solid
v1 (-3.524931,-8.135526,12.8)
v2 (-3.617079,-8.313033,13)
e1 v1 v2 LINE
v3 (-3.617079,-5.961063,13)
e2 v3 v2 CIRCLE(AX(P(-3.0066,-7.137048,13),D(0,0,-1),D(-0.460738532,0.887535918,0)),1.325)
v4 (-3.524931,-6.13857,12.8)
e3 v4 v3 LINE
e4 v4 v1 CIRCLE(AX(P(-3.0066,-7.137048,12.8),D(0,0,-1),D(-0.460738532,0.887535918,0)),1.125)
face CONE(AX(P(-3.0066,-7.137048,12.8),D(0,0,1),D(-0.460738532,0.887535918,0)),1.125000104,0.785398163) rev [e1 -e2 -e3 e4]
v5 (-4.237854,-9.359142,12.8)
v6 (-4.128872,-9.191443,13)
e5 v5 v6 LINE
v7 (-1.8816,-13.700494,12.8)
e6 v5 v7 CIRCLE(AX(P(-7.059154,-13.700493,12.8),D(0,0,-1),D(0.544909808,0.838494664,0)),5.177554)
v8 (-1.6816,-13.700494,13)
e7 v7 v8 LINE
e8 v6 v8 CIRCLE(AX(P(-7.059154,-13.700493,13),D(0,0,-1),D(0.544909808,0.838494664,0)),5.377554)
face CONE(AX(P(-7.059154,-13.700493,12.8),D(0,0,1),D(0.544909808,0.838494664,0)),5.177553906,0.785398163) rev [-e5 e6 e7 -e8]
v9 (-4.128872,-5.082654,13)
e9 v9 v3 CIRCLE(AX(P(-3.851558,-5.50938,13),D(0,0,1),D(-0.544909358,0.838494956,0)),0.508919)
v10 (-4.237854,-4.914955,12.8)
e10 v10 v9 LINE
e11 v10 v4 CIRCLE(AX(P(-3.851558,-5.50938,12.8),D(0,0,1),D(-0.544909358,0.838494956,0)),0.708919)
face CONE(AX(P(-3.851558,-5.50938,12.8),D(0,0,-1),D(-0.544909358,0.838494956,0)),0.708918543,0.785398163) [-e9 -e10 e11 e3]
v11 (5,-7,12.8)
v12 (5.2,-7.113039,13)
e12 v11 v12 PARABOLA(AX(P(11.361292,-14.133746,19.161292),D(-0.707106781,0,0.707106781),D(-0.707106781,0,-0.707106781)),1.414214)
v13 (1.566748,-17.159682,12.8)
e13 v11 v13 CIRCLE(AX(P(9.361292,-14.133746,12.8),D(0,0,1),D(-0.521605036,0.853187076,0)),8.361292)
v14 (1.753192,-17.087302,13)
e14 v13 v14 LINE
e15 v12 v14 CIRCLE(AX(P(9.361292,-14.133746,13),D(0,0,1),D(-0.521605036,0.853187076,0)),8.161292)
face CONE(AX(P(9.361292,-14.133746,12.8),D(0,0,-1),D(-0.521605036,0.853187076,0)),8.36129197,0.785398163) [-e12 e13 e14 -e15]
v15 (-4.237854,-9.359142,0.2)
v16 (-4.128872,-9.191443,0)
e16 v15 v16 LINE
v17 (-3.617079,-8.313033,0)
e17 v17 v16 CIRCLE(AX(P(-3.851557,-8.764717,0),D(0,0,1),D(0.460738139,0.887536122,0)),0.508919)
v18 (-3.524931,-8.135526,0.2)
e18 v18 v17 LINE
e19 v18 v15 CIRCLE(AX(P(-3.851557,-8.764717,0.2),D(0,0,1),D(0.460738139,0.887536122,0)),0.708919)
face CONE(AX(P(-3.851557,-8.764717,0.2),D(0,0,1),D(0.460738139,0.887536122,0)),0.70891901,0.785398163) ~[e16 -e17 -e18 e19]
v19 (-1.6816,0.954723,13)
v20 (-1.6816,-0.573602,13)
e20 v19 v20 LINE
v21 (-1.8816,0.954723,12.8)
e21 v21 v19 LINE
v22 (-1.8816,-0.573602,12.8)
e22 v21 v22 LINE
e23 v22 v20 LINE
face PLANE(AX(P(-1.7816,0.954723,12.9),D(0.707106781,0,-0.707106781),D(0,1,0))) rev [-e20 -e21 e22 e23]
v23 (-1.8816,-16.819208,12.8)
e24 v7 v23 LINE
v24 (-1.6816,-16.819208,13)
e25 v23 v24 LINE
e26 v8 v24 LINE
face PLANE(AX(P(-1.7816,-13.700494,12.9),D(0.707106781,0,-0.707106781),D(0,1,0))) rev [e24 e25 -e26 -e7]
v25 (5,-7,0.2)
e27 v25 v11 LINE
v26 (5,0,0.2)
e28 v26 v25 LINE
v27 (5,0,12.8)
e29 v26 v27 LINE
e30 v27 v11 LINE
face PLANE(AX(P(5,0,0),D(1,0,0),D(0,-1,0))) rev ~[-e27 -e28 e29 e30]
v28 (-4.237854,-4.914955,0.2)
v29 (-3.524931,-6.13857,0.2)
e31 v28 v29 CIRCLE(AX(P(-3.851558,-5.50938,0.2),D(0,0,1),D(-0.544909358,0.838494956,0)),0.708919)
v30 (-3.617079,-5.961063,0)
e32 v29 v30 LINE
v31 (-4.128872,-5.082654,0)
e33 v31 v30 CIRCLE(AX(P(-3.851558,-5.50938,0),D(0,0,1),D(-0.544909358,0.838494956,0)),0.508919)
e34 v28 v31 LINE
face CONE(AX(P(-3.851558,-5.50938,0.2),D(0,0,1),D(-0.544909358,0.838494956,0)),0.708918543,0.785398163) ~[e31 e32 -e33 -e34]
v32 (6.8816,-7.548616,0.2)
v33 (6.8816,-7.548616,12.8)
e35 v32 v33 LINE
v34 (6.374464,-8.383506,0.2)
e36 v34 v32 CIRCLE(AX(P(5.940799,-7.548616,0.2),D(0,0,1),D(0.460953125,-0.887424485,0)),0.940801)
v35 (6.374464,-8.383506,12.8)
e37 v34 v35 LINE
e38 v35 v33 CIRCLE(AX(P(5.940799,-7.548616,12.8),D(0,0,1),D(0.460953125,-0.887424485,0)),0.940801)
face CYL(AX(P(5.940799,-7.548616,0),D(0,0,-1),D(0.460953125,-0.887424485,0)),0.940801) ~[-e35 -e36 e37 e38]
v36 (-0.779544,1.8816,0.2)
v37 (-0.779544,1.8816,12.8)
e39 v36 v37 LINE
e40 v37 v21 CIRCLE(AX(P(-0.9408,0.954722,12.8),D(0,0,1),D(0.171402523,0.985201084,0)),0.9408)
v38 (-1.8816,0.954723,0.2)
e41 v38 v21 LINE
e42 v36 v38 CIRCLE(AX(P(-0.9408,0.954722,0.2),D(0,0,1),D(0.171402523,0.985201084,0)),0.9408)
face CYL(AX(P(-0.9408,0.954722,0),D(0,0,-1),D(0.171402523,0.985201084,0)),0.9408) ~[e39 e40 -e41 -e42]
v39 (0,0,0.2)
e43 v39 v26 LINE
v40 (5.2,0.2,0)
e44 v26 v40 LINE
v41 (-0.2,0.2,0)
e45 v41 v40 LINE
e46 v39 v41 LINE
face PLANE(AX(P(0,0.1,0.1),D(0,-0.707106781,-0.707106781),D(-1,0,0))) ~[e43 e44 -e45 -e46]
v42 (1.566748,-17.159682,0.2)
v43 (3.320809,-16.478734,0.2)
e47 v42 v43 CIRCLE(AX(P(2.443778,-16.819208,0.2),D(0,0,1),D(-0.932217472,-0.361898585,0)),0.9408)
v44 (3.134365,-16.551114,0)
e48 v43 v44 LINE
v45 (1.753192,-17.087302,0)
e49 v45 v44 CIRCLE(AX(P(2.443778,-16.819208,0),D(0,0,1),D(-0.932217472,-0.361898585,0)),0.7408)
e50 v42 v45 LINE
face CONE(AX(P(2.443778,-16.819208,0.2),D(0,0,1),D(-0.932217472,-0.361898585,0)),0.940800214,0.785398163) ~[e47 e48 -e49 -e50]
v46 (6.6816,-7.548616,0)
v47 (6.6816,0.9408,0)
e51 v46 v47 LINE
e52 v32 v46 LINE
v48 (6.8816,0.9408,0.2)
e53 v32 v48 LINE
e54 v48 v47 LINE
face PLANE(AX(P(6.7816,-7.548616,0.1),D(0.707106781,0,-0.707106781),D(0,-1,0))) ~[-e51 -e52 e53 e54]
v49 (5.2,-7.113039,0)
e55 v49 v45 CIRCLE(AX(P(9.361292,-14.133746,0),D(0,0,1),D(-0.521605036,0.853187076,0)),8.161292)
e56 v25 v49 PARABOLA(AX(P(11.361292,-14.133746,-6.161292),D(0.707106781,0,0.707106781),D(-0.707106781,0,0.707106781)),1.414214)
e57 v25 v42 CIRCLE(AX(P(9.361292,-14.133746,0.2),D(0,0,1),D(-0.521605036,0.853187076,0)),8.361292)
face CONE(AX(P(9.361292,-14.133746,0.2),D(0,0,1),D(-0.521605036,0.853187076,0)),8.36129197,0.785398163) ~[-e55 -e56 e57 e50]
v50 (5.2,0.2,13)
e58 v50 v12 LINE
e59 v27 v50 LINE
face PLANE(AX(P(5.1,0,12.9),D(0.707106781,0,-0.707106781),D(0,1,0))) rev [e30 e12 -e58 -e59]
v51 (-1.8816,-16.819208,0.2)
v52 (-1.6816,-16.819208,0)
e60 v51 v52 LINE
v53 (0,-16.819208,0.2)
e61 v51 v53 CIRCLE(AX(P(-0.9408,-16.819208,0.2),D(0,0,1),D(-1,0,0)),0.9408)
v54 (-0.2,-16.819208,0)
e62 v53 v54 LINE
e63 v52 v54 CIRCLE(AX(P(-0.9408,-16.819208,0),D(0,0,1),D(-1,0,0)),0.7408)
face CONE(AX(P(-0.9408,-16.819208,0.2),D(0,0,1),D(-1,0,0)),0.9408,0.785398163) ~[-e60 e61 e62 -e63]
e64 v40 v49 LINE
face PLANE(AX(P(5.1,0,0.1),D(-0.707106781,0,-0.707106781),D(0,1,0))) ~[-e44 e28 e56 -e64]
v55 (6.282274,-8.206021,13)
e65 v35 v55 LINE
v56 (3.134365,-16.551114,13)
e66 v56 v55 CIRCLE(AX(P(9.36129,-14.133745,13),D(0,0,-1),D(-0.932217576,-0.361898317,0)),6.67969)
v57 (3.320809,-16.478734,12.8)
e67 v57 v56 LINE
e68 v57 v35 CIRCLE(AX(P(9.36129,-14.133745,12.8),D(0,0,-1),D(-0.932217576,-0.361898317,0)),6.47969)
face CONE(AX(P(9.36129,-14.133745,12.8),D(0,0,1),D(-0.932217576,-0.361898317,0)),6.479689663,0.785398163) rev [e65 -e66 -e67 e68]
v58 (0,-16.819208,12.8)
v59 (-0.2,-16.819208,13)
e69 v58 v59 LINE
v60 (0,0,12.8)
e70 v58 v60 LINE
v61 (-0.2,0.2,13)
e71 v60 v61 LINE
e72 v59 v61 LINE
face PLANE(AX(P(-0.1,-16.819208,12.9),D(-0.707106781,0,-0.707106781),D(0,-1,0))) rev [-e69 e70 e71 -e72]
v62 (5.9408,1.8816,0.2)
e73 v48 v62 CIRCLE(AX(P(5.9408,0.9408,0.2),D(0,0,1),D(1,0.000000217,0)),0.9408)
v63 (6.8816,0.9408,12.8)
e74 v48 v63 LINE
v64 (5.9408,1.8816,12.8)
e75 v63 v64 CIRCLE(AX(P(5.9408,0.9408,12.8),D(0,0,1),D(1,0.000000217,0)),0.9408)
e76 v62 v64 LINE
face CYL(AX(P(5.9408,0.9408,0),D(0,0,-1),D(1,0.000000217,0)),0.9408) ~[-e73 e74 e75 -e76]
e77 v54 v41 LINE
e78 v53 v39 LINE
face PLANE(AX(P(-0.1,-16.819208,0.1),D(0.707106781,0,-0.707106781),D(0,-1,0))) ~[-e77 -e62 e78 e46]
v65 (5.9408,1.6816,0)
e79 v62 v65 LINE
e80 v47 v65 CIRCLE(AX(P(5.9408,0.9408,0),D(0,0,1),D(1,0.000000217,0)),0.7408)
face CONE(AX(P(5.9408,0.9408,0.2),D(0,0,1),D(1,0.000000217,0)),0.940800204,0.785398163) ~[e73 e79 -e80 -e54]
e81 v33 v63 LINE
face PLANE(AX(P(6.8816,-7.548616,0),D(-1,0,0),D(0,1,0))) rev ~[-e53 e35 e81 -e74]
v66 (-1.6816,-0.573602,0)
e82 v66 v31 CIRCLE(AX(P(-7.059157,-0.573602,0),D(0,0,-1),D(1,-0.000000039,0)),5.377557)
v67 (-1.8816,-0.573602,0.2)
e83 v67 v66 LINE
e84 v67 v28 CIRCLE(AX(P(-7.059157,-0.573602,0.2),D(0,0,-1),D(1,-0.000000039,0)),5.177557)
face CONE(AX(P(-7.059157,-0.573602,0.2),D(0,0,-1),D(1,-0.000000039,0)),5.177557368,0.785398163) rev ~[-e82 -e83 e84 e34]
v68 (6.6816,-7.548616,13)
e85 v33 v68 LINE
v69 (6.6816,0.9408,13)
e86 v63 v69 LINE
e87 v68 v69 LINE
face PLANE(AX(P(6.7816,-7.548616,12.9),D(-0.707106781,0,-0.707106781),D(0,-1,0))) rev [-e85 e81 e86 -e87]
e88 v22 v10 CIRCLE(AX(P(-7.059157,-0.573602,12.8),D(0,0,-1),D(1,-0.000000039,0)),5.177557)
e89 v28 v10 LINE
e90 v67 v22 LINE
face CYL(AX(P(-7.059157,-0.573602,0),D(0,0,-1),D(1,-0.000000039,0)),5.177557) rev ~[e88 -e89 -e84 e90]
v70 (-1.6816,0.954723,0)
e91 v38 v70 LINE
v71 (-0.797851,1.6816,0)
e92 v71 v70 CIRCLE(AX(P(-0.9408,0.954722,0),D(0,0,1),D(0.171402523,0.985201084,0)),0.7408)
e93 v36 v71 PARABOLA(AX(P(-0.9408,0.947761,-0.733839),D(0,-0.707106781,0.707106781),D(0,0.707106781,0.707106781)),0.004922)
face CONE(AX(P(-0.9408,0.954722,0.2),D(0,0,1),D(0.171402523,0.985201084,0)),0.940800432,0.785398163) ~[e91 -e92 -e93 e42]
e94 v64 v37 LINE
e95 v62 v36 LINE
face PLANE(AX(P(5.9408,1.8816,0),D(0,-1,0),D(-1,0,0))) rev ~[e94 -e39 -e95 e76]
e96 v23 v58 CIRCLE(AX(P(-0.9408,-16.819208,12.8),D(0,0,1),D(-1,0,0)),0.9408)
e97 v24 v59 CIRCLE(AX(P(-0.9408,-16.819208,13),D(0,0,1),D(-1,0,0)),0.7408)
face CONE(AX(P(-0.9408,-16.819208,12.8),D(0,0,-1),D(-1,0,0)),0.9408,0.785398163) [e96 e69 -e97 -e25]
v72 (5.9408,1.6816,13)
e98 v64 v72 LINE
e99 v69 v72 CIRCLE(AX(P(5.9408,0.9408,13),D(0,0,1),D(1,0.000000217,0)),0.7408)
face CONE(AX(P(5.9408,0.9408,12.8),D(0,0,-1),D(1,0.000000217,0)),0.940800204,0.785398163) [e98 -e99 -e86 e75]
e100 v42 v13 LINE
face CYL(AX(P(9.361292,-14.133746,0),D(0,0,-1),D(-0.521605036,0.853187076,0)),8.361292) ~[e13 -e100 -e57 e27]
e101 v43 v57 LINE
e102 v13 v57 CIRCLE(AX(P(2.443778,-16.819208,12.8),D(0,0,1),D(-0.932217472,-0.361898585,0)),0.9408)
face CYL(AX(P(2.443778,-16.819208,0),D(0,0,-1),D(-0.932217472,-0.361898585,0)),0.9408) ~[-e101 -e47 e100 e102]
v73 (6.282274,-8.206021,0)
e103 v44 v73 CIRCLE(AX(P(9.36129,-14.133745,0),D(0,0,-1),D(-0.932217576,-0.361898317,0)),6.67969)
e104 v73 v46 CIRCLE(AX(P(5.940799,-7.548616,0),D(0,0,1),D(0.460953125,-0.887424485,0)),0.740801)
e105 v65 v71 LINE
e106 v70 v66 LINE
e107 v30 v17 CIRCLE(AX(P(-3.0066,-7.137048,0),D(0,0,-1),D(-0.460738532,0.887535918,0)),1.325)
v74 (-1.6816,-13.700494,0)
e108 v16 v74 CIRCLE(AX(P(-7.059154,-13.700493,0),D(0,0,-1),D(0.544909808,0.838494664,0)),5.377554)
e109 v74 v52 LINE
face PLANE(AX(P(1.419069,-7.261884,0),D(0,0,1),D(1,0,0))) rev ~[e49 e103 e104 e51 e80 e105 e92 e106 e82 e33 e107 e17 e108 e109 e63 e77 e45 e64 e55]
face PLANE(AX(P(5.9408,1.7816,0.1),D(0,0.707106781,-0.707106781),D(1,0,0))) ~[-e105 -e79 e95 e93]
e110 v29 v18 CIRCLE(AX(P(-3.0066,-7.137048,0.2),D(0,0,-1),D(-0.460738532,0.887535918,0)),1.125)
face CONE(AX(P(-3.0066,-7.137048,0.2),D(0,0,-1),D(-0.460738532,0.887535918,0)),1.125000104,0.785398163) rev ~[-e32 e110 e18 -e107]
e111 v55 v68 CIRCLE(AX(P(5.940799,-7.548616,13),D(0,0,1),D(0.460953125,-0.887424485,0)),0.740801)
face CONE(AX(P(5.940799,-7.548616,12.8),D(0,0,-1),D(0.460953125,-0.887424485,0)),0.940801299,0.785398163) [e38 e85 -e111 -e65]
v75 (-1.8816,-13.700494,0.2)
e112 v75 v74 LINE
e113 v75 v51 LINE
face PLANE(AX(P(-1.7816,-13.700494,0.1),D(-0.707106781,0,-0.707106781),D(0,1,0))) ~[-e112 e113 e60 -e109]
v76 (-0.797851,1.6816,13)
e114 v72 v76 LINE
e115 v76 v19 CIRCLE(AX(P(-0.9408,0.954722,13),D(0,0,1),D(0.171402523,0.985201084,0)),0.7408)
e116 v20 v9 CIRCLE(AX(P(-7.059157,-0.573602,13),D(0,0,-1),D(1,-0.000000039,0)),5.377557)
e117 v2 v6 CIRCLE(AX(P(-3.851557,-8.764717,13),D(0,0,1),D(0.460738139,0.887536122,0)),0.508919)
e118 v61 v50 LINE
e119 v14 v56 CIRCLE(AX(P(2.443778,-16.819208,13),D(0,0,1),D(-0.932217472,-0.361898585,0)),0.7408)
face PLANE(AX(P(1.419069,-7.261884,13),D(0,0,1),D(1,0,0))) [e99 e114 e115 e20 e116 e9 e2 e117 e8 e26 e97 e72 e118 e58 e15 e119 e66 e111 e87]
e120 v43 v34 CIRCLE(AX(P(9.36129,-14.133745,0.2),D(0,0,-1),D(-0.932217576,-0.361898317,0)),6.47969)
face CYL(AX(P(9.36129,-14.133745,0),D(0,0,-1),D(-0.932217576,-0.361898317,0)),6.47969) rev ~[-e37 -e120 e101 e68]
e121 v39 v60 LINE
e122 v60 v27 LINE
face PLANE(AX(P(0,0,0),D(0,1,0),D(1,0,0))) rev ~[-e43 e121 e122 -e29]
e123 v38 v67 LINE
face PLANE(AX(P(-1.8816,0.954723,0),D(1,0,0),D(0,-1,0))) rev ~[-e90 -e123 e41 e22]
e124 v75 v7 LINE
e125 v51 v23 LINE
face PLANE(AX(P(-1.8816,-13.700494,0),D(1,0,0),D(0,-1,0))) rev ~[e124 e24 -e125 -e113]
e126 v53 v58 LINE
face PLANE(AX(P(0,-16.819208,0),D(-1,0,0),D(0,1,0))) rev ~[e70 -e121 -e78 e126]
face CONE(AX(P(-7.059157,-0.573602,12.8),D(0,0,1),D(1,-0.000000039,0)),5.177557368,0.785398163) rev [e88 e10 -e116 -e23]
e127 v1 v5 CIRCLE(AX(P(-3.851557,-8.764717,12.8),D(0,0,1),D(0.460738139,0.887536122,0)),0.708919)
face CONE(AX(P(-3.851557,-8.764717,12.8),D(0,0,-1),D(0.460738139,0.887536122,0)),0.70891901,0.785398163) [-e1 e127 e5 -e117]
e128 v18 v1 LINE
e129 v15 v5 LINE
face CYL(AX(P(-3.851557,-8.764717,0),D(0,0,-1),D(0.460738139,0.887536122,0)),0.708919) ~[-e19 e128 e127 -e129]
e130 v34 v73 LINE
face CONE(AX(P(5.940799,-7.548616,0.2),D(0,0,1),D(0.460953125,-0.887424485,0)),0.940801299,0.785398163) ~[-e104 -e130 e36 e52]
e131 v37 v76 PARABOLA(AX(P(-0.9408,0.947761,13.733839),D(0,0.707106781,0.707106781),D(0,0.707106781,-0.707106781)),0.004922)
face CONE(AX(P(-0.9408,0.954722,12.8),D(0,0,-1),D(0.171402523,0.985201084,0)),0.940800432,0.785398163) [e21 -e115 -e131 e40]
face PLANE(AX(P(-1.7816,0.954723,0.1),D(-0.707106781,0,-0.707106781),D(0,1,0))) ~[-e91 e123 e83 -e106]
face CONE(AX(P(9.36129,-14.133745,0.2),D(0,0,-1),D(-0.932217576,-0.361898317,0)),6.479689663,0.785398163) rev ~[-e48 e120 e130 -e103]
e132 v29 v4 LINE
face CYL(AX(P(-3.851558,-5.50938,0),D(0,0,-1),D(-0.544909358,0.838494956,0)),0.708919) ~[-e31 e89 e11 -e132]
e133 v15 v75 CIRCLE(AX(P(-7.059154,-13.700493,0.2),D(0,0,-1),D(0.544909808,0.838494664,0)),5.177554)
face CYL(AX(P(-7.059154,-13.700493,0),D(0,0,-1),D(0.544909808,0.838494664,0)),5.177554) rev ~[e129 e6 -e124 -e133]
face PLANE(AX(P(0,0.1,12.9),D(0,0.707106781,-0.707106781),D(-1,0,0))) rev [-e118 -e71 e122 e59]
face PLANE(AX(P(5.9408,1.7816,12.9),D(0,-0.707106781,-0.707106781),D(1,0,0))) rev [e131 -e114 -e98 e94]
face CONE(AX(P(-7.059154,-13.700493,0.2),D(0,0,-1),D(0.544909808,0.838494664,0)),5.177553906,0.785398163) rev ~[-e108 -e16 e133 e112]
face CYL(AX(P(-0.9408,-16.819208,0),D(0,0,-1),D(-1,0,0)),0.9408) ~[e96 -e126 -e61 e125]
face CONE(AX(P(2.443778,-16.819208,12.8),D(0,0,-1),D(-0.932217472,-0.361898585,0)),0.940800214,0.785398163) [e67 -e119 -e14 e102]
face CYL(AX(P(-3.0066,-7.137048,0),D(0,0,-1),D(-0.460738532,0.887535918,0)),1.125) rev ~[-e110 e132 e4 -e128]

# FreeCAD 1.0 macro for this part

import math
import FreeCAD as App
import Part
import Sketcher
from FreeCAD import Vector
Q = App.Units.Quantity


def edges_at(feature, points):
    """Names of the edges that pass closest to the given points."""
    edges = feature.Shape.Edges
    near = lambda p: min(range(len(edges)), key=lambda i: edges[i].distToShape(Part.Vertex(*p))[0])
    return sorted({f"Edge{near(p) + 1}" for p in points})

doc = App.newDocument("Part")
body = doc.addObject("PartDesign::Body", "Body")

# Sketch on XY plane
sketch1 = body.newObject("Sketcher::SketchObject", "Sketch")
sketch1.AttachmentSupport = (doc.getObject("XY_Plane"), [""])
sketch1.MapMode = "FlatFace"
sketch1.addGeometry([
    Part.ArcOfCircle(Part.Circle(Vector(-0.9, -16.8, 0), Vector(0, 0, 1), 0.9), math.radians(180), math.radians(360)),  # 0
    Part.LineSegment(Vector(0, -16.8, 0), Vector(0, 0, 0)),  # 1
    Part.LineSegment(Vector(0, 0, 0), Vector(5, 0, 0)),  # 2
    Part.LineSegment(Vector(5, 0, 0), Vector(5, -7, 0)),  # 3
    Part.ArcOfCircle(Part.Circle(Vector(9.4, -14.1, 0), Vector(0, 0, 1), 8.4), math.radians(121), math.radians(201)),  # 4
    Part.ArcOfCircle(Part.Circle(Vector(2.4, -16.8, 0), Vector(0, 0, 1), 0.9), math.radians(-159), math.radians(21)),  # 5
    Part.ArcOfCircle(Part.Circle(Vector(9.4, -14.1, 0), Vector(0, 0, 1), 6.5), math.radians(117), math.radians(201)),  # 6
    Part.ArcOfCircle(Part.Circle(Vector(5.9, -7.5, 0), Vector(0, 0, 1), 0.9), math.radians(-63), math.radians(0)),  # 7
    Part.LineSegment(Vector(6.9, -7.5, 0), Vector(6.9, 0.9, 0)),  # 8
    Part.ArcOfCircle(Part.Circle(Vector(5.9, 0.9, 0), Vector(0, 0, 1), 0.9), math.radians(0), math.radians(90)),  # 9
    Part.LineSegment(Vector(5.9, 1.9, 0), Vector(-0.8, 1.9, 0)),  # 10
    Part.ArcOfCircle(Part.Circle(Vector(-0.9, 1, 0), Vector(0, 0, 1), 0.9), math.radians(80), math.radians(180)),  # 11
    Part.LineSegment(Vector(-1.9, 1, 0), Vector(-1.9, -0.6, 0)),  # 12
    Part.ArcOfCircle(Part.Circle(Vector(-7.1, -0.6, 0), Vector(0, 0, 1), 5.2), math.radians(-57), math.radians(0)),  # 13
    Part.ArcOfCircle(Part.Circle(Vector(-3.9, -5.5, 0), Vector(0, 0, 1), 0.7), math.radians(123), math.radians(297)),  # 14
    Part.ArcOfCircle(Part.Circle(Vector(-3, -7.1, 0), Vector(0, 0, 1), 1.1), math.radians(-117), math.radians(117)),  # 15
    Part.ArcOfCircle(Part.Circle(Vector(-3.9, -8.8, 0), Vector(0, 0, 1), 0.7), math.radians(63), math.radians(237)),  # 16
    Part.ArcOfCircle(Part.Circle(Vector(-7.1, -13.7, 0), Vector(0, 0, 1), 5.2), math.radians(0), math.radians(57)),  # 17
    Part.LineSegment(Vector(-1.9, -13.7, 0), Vector(-1.9, -16.8, 0)),  # 18
], False)
sketch1.addConstraint([
    Sketcher.Constraint("Tangent", 0, 2, 1, 1),
    Sketcher.Constraint("Coincident", 1, 2, 2, 1),
    Sketcher.Constraint("Coincident", 2, 2, 3, 1),
    Sketcher.Constraint("Coincident", 3, 2, 4, 1),
    Sketcher.Constraint("Tangent", 4, 2, 5, 1),
    Sketcher.Constraint("Tangent", 5, 2, 6, 2),
    Sketcher.Constraint("Tangent", 6, 1, 7, 1),
    Sketcher.Constraint("Tangent", 7, 2, 8, 1),
    Sketcher.Constraint("Tangent", 8, 2, 9, 1),
    Sketcher.Constraint("Tangent", 9, 2, 10, 1),
    Sketcher.Constraint("Coincident", 10, 2, 11, 1),
    Sketcher.Constraint("Tangent", 11, 2, 12, 1),
    Sketcher.Constraint("Tangent", 12, 2, 13, 2),
    Sketcher.Constraint("Tangent", 13, 1, 14, 1),
    Sketcher.Constraint("Tangent", 14, 2, 15, 2),
    Sketcher.Constraint("Tangent", 15, 1, 16, 1),
    Sketcher.Constraint("Tangent", 16, 2, 17, 2),
    Sketcher.Constraint("Tangent", 17, 1, 18, 1),
    Sketcher.Constraint("Tangent", 18, 2, 0, 1),
    Sketcher.Constraint("Vertical", 1),
    Sketcher.Constraint("Horizontal", 2),
    Sketcher.Constraint("Vertical", 3),
    Sketcher.Constraint("Vertical", 8),
    Sketcher.Constraint("Horizontal", 10),
    Sketcher.Constraint("Vertical", 12),
    Sketcher.Constraint("Vertical", 18),
    Sketcher.Constraint("Coincident", 1, 2, -1, 1),
    Sketcher.Constraint("Coincident", 6, 3, 4, 3),
    Sketcher.Constraint("Equal", 0, 5),
    Sketcher.Constraint("Equal", 5, 7),
    Sketcher.Constraint("Equal", 7, 9),
    Sketcher.Constraint("Equal", 9, 11),
    Sketcher.Constraint("Equal", 14, 16),
    Sketcher.Constraint("Horizontal", 0, 3, 5, 3),
    Sketcher.Constraint("Vertical", 0, 3, 11, 3),
    Sketcher.Constraint("Vertical", 14, 3, 16, 3),
    Sketcher.Constraint("Vertical", 13, 1, 16, 2),
    Sketcher.Constraint("DistanceX", 2, 1, 2, 2, Q("5 mm")),
    Sketcher.Constraint("DistanceY", 3, 2, 3, 1, Q("7 mm")),
    Sketcher.Constraint("Radius", 15, Q("1.125 mm")),
    Sketcher.Constraint("Radius", 0, Q("0.9408 mm")),
    Sketcher.Constraint("Radius", 4, Q("8.361292 mm")),
    Sketcher.Constraint("Radius", 14, Q("0.708919 mm")),
    Sketcher.Constraint("Radius", 13, Q("5.177557 mm")),
    Sketcher.Constraint("DistanceX", -1, 1, 7, 3, Q("5.940799 mm")),
    Sketcher.Constraint("DistanceY", -1, 1, 9, 3, Q("0.9408 mm")),
    Sketcher.Constraint("DistanceY", 13, 3, -1, 1, Q("0.573602 mm")),
    Sketcher.Constraint("DistanceX", 15, 3, -1, 1, Q("3.0066 mm")),
    Sketcher.Constraint("DistanceX", 13, 3, 14, 3, Q("3.2076 mm")),
    Sketcher.Constraint("DistanceY", 16, 3, 7, 3, Q("1.216101 mm")),
    Sketcher.Constraint("DistanceX", 10, 2, 10, 1, Q("6.720344 mm")),
    Sketcher.Constraint("DistanceY", 1, 1, 1, 2, Q("16.819208 mm")),
])
pad1 = body.newObject("PartDesign::Pad", "Pad")
pad1.Profile = sketch1
pad1.Length = 13
doc.recompute()

chamfer = body.newObject("PartDesign::Chamfer", "Chamfer")
chamfer.Base = (pad1, edges_at(pad1, [
    (-2.509, -11.231, 0),
    (-1.882, -15.26, 0),
    (-0.941, -17.76, 0),
    (0, -8.41, 0),
    (2.5, 0, 0),
    (5, -3.5, 0),
    (1.44, -11.457, 0),
    (2.784, -17.696, 0),
    (3.299, -11.847, 0),
    (6.745, -8.037, 0),
    (6.882, -3.304, 0),
    (6.606, 1.606, 0),
    (2.581, 1.882, 0),
    (-1.546, 1.675, 0),
    (-1.882, 0.191, 0),
    (-2.509, -3.043, 0),
    (-4.464, -5.866, 0),
    (-1.882, -7.137, 0),
    (-4.464, -8.408, 0),
    (-2.509, -11.231, 13),
    (-1.882, -15.26, 13),
    (-0.941, -17.76, 13),
    (0, -8.41, 13),
    (2.5, 0, 13),
    (5, -3.5, 13),
    (1.44, -11.457, 13),
    (2.784, -17.696, 13),
    (3.299, -11.847, 13),
    (6.745, -8.037, 13),
    (6.882, -3.304, 13),
    (6.606, 1.606, 13),
    (2.581, 1.882, 13),
    (-1.546, 1.675, 13),
    (-1.882, 0.191, 13),
    (-2.509, -3.043, 13),
    (-4.464, -5.866, 13),
    (-1.882, -7.137, 13),
    (-4.464, -8.408, 13),
]))
chamfer.Size = 0.2

doc.recompute()
